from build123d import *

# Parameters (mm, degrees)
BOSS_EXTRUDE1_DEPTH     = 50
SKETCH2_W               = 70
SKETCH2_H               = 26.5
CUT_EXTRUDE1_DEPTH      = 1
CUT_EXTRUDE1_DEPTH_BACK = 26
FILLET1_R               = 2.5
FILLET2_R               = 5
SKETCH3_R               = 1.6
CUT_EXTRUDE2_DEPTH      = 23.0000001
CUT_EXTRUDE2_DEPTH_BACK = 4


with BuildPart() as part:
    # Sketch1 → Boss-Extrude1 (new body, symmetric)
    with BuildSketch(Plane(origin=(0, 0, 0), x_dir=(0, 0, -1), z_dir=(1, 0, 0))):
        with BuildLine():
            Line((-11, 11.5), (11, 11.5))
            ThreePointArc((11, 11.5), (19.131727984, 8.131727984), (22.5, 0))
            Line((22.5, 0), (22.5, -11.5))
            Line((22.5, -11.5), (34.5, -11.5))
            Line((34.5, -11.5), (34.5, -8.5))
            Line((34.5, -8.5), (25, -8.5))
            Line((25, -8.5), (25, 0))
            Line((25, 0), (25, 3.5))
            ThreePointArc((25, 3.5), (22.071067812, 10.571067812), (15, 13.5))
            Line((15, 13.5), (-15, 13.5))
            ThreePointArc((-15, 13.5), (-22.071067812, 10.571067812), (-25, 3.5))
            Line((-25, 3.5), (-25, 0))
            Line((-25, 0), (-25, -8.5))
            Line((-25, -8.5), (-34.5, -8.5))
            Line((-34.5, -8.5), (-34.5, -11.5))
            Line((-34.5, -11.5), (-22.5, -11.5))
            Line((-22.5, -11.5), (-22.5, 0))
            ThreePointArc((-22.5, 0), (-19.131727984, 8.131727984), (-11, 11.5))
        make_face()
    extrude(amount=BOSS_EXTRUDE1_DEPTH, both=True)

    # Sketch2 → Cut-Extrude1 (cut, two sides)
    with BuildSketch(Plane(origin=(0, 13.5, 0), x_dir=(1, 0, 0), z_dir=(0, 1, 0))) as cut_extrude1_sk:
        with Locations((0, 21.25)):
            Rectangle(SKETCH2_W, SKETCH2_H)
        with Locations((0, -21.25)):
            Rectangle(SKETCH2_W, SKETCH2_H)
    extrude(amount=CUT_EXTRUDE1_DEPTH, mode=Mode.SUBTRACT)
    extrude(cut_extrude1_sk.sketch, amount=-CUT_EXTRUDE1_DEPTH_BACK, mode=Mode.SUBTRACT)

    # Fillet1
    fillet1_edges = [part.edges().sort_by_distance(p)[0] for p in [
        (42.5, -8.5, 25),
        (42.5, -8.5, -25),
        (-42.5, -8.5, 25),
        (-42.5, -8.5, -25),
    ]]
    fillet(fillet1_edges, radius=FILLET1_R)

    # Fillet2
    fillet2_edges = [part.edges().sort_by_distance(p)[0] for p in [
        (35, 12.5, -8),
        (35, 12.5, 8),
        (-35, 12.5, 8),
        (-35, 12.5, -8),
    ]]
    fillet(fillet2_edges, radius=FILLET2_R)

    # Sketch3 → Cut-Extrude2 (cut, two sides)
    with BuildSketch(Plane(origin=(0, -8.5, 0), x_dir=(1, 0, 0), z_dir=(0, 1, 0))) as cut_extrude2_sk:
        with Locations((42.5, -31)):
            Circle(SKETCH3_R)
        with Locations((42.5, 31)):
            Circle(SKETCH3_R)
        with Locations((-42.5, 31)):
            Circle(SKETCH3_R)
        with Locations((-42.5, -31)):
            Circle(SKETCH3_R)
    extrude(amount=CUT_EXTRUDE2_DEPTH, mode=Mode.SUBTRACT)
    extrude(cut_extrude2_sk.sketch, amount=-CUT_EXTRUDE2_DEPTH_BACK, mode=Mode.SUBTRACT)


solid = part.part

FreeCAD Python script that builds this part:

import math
import FreeCAD as App
import Part
import Sketcher


def edges_at(feature, points):
    """Names of the edges that pass closest to the given points."""
    edges = feature.Shape.Edges
    near = lambda p: min(range(len(edges)), key=lambda i: edges[i].distToShape(Part.Vertex(*p))[0])
    return sorted({f"Edge{near(p) + 1}" for p in points})

doc = App.newDocument("Part")
body = doc.addObject("PartDesign::Body", "Body")

sketch1 = doc.addObject("Sketcher::SketchObject", "Sketch")
body.addObject(sketch1)
sketch1.AttachmentSupport = (doc.YZ_Plane, [""])
sketch1.MapMode = "FlatFace"
sketch1.addGeometry(Part.LineSegment(App.Vector(11.5, 11, 0), App.Vector(11.5, -11, 0)), False)
sketch1.addGeometry(Part.ArcOfCircle(Part.Circle(App.Vector(0, -11, 0), App.Vector(0, 0, 1), 11.5), math.radians(-90), math.radians(0)), False)
sketch1.addGeometry(Part.LineSegment(App.Vector(0, -22.5, 0), App.Vector(-11.5, -22.5, 0)), False)
sketch1.addGeometry(Part.LineSegment(App.Vector(-11.5, -22.5, 0), App.Vector(-11.5, -34.5, 0)), False)
sketch1.addGeometry(Part.LineSegment(App.Vector(-11.5, -34.5, 0), App.Vector(-8.5, -34.5, 0)), False)
sketch1.addGeometry(Part.LineSegment(App.Vector(-8.5, -34.5, 0), App.Vector(-8.5, -25, 0)), False)
sketch1.addGeometry(Part.LineSegment(App.Vector(-8.5, -25, 0), App.Vector(3.5, -25, 0)), False)
sketch1.addGeometry(Part.ArcOfCircle(Part.Circle(App.Vector(3.5, -15, 0), App.Vector(0, 0, 1), 10), math.radians(-90), math.radians(0)), False)
sketch1.addGeometry(Part.LineSegment(App.Vector(13.5, -15, 0), App.Vector(13.5, 15, 0)), False)
sketch1.addGeometry(Part.ArcOfCircle(Part.Circle(App.Vector(3.5, 15, 0), App.Vector(0, 0, 1), 10), math.radians(0), math.radians(90)), False)
sketch1.addGeometry(Part.LineSegment(App.Vector(3.5, 25, 0), App.Vector(-8.5, 25, 0)), False)
sketch1.addGeometry(Part.LineSegment(App.Vector(-8.5, 25, 0), App.Vector(-8.5, 34.5, 0)), False)
sketch1.addGeometry(Part.LineSegment(App.Vector(-8.5, 34.5, 0), App.Vector(-11.5, 34.5, 0)), False)
sketch1.addGeometry(Part.LineSegment(App.Vector(-11.5, 34.5, 0), App.Vector(-11.5, 22.5, 0)), False)
sketch1.addGeometry(Part.LineSegment(App.Vector(-11.5, 22.5, 0), App.Vector(0, 22.5, 0)), False)
sketch1.addGeometry(Part.ArcOfCircle(Part.Circle(App.Vector(0, 11, 0), App.Vector(0, 0, 1), 11.5), math.radians(0), math.radians(90)), False)
sketch1.addConstraint(Sketcher.Constraint("Tangent", 0, 2, 1, 2))
sketch1.addConstraint(Sketcher.Constraint("Tangent", 1, 1, 2, 1))
sketch1.addConstraint(Sketcher.Constraint("Coincident", 2, 2, 3, 1))
sketch1.addConstraint(Sketcher.Constraint("Coincident", 3, 2, 4, 1))
sketch1.addConstraint(Sketcher.Constraint("Coincident", 4, 2, 5, 1))
sketch1.addConstraint(Sketcher.Constraint("Coincident", 5, 2, 6, 1))
sketch1.addConstraint(Sketcher.Constraint("Tangent", 6, 2, 7, 1))
sketch1.addConstraint(Sketcher.Constraint("Tangent", 7, 2, 8, 1))
sketch1.addConstraint(Sketcher.Constraint("Tangent", 8, 2, 9, 1))
sketch1.addConstraint(Sketcher.Constraint("Tangent", 9, 2, 10, 1))
sketch1.addConstraint(Sketcher.Constraint("Coincident", 10, 2, 11, 1))
sketch1.addConstraint(Sketcher.Constraint("Coincident", 11, 2, 12, 1))
sketch1.addConstraint(Sketcher.Constraint("Coincident", 12, 2, 13, 1))
sketch1.addConstraint(Sketcher.Constraint("Coincident", 13, 2, 14, 1))
sketch1.addConstraint(Sketcher.Constraint("Tangent", 14, 2, 15, 2))
sketch1.addConstraint(Sketcher.Constraint("Tangent", 15, 1, 0, 1))
sketch1.addConstraint(Sketcher.Constraint("Vertical", 0))
sketch1.addConstraint(Sketcher.Constraint("Horizontal", 2))
sketch1.addConstraint(Sketcher.Constraint("Vertical", 3))
sketch1.addConstraint(Sketcher.Constraint("Horizontal", 4))
sketch1.addConstraint(Sketcher.Constraint("Vertical", 5))
sketch1.addConstraint(Sketcher.Constraint("Horizontal", 6))
sketch1.addConstraint(Sketcher.Constraint("Vertical", 8))
sketch1.addConstraint(Sketcher.Constraint("Horizontal", 10))
sketch1.addConstraint(Sketcher.Constraint("Vertical", 11))
sketch1.addConstraint(Sketcher.Constraint("Horizontal", 12))
sketch1.addConstraint(Sketcher.Constraint("Vertical", 13))
sketch1.addConstraint(Sketcher.Constraint("Horizontal", 14))
sketch1.addConstraint(Sketcher.Constraint("Equal", 7, 9))
sketch1.addConstraint(Sketcher.Constraint("Equal", 1, 15))
sketch1.addConstraint(Sketcher.Constraint("Symmetric", 1, 3, 15, 3, -1, 1))
sketch1.addConstraint(Sketcher.Constraint("Symmetric", 5, 2, 10, 2, -1))
sketch1.addConstraint(Sketcher.Constraint("Symmetric", 3, 2, 12, 2, -1))
sketch1.addConstraint(Sketcher.Constraint("Equal", 10, 3))
sketch1.addConstraint(Sketcher.Constraint("Radius", 7, 10.0))
sketch1.addConstraint(Sketcher.Constraint("Radius", 1, 11.5))
sketch1.addConstraint(Sketcher.Constraint("DistanceX", 4, 1, 4, 2, 3.0))
sketch1.addConstraint(Sketcher.Constraint("DistanceX", 6, 1, 6, 2, 12.0))
sketch1.addConstraint(Sketcher.Constraint("DistanceY", 0, 2, 0, 1, 22.0))
sketch1.addConstraint(Sketcher.Constraint("DistanceY", 8, 1, 8, 2, 30.0))
sketch1.addConstraint(Sketcher.Constraint("DistanceX", 2, 2, 2, 1, 11.5))
pad1 = doc.addObject("PartDesign::Pad", "Pad")
body.addObject(pad1)
pad1.Profile = sketch1
pad1.Length = 100
pad1.Midplane = True

sketch2 = doc.addObject("Sketcher::SketchObject", "Sketch001")
body.addObject(sketch2)
sketch2.AttachmentSupport = (doc.XZ_Plane, [""])
sketch2.MapMode = "FlatFace"
sketch2.AttachmentOffset = App.Placement(App.Vector(0, 0, -13.5), App.Rotation())
sketch2.addGeometry(Part.LineSegment(App.Vector(-35, -34, 0), App.Vector(-35, -8, 0)), False)
sketch2.addGeometry(Part.LineSegment(App.Vector(-35, -8, 0), App.Vector(35, -8, 0)), False)
sketch2.addGeometry(Part.LineSegment(App.Vector(35, -8, 0), App.Vector(35, -34, 0)), False)
sketch2.addGeometry(Part.LineSegment(App.Vector(35, -34, 0), App.Vector(-35, -34, 0)), False)
sketch2.addGeometry(Part.LineSegment(App.Vector(-35, 8, 0), App.Vector(-35, 34, 0)), False)
sketch2.addGeometry(Part.LineSegment(App.Vector(-35, 34, 0), App.Vector(35, 34, 0)), False)
sketch2.addGeometry(Part.LineSegment(App.Vector(35, 34, 0), App.Vector(35, 8, 0)), False)
sketch2.addGeometry(Part.LineSegment(App.Vector(35, 8, 0), App.Vector(-35, 8, 0)), False)
sketch2.addConstraint(Sketcher.Constraint("Coincident", 0, 2, 1, 1))
sketch2.addConstraint(Sketcher.Constraint("Coincident", 1, 2, 2, 1))
sketch2.addConstraint(Sketcher.Constraint("Coincident", 2, 2, 3, 1))
sketch2.addConstraint(Sketcher.Constraint("Coincident", 3, 2, 0, 1))
sketch2.addConstraint(Sketcher.Constraint("Coincident", 4, 2, 5, 1))
sketch2.addConstraint(Sketcher.Constraint("Coincident", 5, 2, 6, 1))
sketch2.addConstraint(Sketcher.Constraint("Coincident", 6, 2, 7, 1))
sketch2.addConstraint(Sketcher.Constraint("Coincident", 7, 2, 4, 1))
sketch2.addConstraint(Sketcher.Constraint("Vertical", 0))
sketch2.addConstraint(Sketcher.Constraint("Horizontal", 1))
sketch2.addConstraint(Sketcher.Constraint("Vertical", 2))
sketch2.addConstraint(Sketcher.Constraint("Horizontal", 3))
sketch2.addConstraint(Sketcher.Constraint("Vertical", 4))
sketch2.addConstraint(Sketcher.Constraint("Horizontal", 5))
sketch2.addConstraint(Sketcher.Constraint("Vertical", 6))
sketch2.addConstraint(Sketcher.Constraint("Horizontal", 7))
sketch2.addConstraint(Sketcher.Constraint("Symmetric", 2, 2, 4, 2, -1, 1))
sketch2.addConstraint(Sketcher.Constraint("Symmetric", 0, 2, 6, 2, -1, 1))
sketch2.addConstraint(Sketcher.Constraint("Vertical", 3, 2, 4, 2))
sketch2.addConstraint(Sketcher.Constraint("DistanceX", 1, 1, 1, 2, 70.0))
sketch2.addConstraint(Sketcher.Constraint("DistanceY", 0, 1, 0, 2, 26.5))
sketch2.addConstraint(Sketcher.Constraint("DistanceY", 0, 2, -1, 1, 8.0))
pocket1 = doc.addObject("PartDesign::Pocket", "Pocket")
body.addObject(pocket1)
pocket1.Profile = sketch2
pocket1.Type = "ThroughAll"
pocket1.Midplane = True
doc.recompute()

fillet = doc.addObject("PartDesign::Fillet", "Fillet")
body.addObject(fillet)
fillet.Base = (pocket1, edges_at(pocket1, [
    (42.5, -8.5, 25),
    (42.5, -8.5, -25),
    (-42.5, -8.5, 25),
    (-42.5, -8.5, -25),
]))
fillet.Radius = 2.5
doc.recompute()

fillet2 = doc.addObject("PartDesign::Fillet", "Fillet001")
body.addObject(fillet2)
fillet2.Base = (fillet, edges_at(fillet, [
    (35, 12.5, -8),
    (35, 12.5, 8),
    (-35, 12.5, 8),
    (-35, 12.5, -8),
]))
fillet2.Radius = 5

sketch3 = doc.addObject("Sketcher::SketchObject", "Sketch002")
body.addObject(sketch3)
sketch3.AttachmentSupport = (doc.XZ_Plane, [""])
sketch3.MapMode = "FlatFace"
sketch3.AttachmentOffset = App.Placement(App.Vector(0, 0, 8.5), App.Rotation())
sketch3.addGeometry(Part.Circle(App.Vector(42.5, 31, 0), App.Vector(0, 0, 1), 1.6), False)
sketch3.addGeometry(Part.Circle(App.Vector(42.5, -31, 0), App.Vector(0, 0, 1), 1.6), False)
sketch3.addGeometry(Part.Circle(App.Vector(-42.5, -31, 0), App.Vector(0, 0, 1), 1.6), False)
sketch3.addGeometry(Part.Circle(App.Vector(-42.5, 31, 0), App.Vector(0, 0, 1), 1.6), False)
sketch3.addConstraint(Sketcher.Constraint("Equal", 0, 1))
sketch3.addConstraint(Sketcher.Constraint("Equal", 1, 2))
sketch3.addConstraint(Sketcher.Constraint("Equal", 2, 3))
sketch3.addConstraint(Sketcher.Constraint("Symmetric", 0, 3, 2, 3, -1, 1))
sketch3.addConstraint(Sketcher.Constraint("Symmetric", 1, 3, 3, 3, -1, 1))
sketch3.addConstraint(Sketcher.Constraint("Symmetric", 1, 3, 2, 3, -2))
sketch3.addConstraint(Sketcher.Constraint("Diameter", 0, 3.2))
sketch3.addConstraint(Sketcher.Constraint("DistanceY", -1, 1, 0, 3, 31.0))
sketch3.addConstraint(Sketcher.Constraint("DistanceX", 2, 3, 1, 3, 85.0))
pocket2 = doc.addObject("PartDesign::Pocket", "Pocket001")
body.addObject(pocket2)
pocket2.Profile = sketch3
pocket2.Type = "ThroughAll"
pocket2.Midplane = True

doc.recompute()
